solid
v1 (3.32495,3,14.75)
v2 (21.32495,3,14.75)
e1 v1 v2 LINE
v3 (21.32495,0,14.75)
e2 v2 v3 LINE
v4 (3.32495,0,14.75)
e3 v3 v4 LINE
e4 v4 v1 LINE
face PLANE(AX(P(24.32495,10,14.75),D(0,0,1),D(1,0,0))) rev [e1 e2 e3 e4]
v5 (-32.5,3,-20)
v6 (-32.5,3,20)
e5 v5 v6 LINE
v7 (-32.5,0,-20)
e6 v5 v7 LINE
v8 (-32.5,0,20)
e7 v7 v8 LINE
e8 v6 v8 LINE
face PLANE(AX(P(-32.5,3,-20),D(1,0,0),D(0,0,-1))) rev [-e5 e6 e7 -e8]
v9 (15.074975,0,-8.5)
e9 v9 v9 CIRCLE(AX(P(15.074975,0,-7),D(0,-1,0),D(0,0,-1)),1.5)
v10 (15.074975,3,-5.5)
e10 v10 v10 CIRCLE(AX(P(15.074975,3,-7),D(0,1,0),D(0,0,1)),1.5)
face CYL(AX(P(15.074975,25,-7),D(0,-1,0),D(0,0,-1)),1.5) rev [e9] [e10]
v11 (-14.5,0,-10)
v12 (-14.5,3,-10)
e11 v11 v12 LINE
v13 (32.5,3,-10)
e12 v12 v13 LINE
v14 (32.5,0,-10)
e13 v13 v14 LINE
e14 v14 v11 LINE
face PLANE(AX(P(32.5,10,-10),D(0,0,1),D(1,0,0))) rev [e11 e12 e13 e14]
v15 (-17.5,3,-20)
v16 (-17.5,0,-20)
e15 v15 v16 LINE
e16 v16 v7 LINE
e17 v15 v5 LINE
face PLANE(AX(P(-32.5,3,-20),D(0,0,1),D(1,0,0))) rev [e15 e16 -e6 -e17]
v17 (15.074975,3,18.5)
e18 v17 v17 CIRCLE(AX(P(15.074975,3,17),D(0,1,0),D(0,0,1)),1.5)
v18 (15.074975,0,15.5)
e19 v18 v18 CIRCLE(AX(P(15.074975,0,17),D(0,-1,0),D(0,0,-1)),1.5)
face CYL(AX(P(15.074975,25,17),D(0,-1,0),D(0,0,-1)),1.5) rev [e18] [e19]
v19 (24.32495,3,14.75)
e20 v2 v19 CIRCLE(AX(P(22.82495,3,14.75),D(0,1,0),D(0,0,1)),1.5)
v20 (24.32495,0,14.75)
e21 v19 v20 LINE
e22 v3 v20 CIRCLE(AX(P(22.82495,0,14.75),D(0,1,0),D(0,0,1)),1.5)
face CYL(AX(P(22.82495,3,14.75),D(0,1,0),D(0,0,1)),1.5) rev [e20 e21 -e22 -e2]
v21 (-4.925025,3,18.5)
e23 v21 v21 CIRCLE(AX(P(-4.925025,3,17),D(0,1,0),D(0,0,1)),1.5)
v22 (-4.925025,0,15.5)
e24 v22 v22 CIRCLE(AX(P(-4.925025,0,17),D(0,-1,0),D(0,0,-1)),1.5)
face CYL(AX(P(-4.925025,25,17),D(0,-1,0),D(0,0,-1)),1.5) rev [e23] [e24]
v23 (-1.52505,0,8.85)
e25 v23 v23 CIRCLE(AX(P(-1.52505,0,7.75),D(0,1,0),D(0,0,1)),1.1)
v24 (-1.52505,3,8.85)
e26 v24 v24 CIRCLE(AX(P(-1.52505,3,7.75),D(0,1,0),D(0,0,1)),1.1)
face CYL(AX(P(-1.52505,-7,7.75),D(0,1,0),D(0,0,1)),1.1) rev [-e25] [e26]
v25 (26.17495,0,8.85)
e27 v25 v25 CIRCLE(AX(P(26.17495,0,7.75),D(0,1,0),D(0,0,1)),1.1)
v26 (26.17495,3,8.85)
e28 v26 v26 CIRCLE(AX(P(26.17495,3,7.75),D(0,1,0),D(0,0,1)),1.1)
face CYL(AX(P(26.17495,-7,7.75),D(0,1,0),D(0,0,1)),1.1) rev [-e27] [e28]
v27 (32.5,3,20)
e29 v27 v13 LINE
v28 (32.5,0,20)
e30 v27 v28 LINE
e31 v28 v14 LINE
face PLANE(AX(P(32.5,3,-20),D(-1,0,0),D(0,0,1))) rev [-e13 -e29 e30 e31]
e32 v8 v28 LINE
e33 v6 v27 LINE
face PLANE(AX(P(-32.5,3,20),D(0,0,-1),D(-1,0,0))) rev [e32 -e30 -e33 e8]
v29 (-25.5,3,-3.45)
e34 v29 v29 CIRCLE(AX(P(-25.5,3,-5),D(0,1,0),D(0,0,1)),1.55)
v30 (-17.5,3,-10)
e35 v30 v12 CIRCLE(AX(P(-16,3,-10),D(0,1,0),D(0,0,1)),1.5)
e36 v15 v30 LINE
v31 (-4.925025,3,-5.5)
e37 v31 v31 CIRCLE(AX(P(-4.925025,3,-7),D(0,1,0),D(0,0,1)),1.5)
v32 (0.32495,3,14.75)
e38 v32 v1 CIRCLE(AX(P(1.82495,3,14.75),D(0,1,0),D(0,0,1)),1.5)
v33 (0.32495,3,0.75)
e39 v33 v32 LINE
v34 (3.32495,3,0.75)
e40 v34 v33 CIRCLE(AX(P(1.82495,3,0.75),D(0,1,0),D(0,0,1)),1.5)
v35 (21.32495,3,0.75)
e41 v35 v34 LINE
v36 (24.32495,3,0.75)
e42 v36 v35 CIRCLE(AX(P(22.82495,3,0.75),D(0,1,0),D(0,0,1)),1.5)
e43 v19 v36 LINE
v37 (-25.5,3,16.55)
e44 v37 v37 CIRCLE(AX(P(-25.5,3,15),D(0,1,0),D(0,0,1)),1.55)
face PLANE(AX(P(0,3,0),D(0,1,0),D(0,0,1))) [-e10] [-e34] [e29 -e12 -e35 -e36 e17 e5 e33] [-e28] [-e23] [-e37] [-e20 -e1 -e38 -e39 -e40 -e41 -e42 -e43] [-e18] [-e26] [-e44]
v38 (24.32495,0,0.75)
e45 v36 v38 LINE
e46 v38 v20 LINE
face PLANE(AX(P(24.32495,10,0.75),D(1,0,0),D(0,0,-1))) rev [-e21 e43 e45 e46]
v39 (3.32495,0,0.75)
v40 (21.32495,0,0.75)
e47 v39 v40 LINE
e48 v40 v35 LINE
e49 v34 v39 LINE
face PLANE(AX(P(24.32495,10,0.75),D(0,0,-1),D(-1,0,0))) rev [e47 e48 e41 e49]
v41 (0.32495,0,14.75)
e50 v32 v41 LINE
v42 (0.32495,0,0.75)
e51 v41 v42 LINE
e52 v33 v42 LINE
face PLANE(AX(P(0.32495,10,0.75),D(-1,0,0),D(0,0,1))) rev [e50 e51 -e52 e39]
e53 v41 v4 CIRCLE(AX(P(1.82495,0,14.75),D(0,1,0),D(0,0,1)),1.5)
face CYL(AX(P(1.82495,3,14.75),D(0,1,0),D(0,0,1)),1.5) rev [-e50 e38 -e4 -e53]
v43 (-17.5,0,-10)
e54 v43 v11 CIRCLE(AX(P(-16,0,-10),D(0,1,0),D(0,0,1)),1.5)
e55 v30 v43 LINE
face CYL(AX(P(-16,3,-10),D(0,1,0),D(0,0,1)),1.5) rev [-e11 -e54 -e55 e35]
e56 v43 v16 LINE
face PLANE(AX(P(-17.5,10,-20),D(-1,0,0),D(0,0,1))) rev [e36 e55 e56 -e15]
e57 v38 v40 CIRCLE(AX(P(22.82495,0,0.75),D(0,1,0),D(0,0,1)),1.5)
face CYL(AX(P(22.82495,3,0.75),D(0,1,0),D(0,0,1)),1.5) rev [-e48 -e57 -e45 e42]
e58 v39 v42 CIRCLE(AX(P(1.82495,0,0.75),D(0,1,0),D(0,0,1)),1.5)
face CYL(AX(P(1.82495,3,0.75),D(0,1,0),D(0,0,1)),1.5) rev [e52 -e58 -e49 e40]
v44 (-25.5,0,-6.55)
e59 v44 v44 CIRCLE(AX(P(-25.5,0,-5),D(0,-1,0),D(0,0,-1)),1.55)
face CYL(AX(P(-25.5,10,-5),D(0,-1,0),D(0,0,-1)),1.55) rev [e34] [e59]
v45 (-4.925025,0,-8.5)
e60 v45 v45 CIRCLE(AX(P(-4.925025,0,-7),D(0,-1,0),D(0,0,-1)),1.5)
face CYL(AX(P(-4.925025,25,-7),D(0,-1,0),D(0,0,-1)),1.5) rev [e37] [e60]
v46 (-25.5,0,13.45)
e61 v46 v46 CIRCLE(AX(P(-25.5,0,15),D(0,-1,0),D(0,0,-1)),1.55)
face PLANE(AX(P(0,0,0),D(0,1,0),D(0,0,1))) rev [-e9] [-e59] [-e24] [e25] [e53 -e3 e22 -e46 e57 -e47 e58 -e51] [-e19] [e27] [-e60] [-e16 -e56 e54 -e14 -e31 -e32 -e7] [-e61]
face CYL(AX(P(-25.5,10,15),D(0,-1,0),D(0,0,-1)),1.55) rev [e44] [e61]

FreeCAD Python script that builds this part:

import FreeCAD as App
import Part
import Sketcher

V = App.Vector

doc = App.newDocument("Part")
params = doc.addObject("Spreadsheet::Sheet", "Params")
for row, (alias, value) in enumerate([
    ("sketch1_width", "65 mm"),
    ("sketch1_height", "40 mm"),
    ("pad1_length", "3 mm"),
    ("sketch2_diameter", "3.1 mm"),
    ("pocket1_length", "10 mm"),
    ("sketch3_width", "50 mm"),
    ("sketch3_height", "10 mm"),
    ("pocket2_length", "10 mm"),
    ("sketch4_width", "24 mm"),
    ("sketch4_height", "14 mm"),
    ("pocket3_length", "10 mm"),
    ("sketch5_diameter", "2.2 mm"),
    ("pocket4_length", "10 mm"),
    ("sketch6_diameter", "3 mm"),
    ("pocket5_length", "25 mm"),
    ("sketch7_diameter", "3 mm"),
    ("hole_diameter", "3 mm"),
], start=1):
    params.set(f"A{row}", alias)
    params.set(f"B{row}", "=" + value)
    params.setAlias(f"B{row}", alias)

body = doc.addObject("PartDesign::Body", "Body")

sketch1 = doc.addObject("Sketcher::SketchObject", "Sketch")
body.addObject(sketch1)
sketch1.AttachmentSupport = (doc.XZ_Plane, [""])
sketch1.MapMode = "FlatFace"
sketch1.addGeometry([
    Part.LineSegment(V(-32.5, -20, 0), V(-32.5, 20, 0)),
    Part.LineSegment(V(-32.5, 20, 0), V(32.5, 20, 0)),
    Part.LineSegment(V(32.5, 20, 0), V(32.5, -20, 0)),
    Part.LineSegment(V(32.5, -20, 0), V(-32.5, -20, 0)),
], False)
sketch1.addConstraint([
    Sketcher.Constraint("Coincident", 0, 2, 1, 1),
    Sketcher.Constraint("Coincident", 1, 2, 2, 1),
    Sketcher.Constraint("Coincident", 2, 2, 3, 1),
    Sketcher.Constraint("Coincident", 3, 2, 0, 1),
    Sketcher.Constraint("Vertical", 0),
    Sketcher.Constraint("Horizontal", 1),
    Sketcher.Constraint("Vertical", 2),
    Sketcher.Constraint("Horizontal", 3),
    Sketcher.Constraint("Symmetric", 0, 2, 2, 2, -1, 1),
    Sketcher.Constraint("DistanceX", 1, 1, 1, 2, 65.0),
    Sketcher.Constraint("DistanceY", 0, 1, 0, 2, 40.0),
])
sketch1.setExpression("Constraints[9]", "Params.sketch1_width")
sketch1.setExpression("Constraints[10]", "Params.sketch1_height")
pad1 = doc.addObject("PartDesign::Pad", "Pad")
body.addObject(pad1)
pad1.Profile = sketch1
pad1.setExpression("Length", "Params.pad1_length")
pad1.Reversed = True

sketch2 = doc.addObject("Sketcher::SketchObject", "Sketch001")
body.addObject(sketch2)
sketch2.AttachmentSupport = (doc.XZ_Plane, [""])
sketch2.MapMode = "FlatFace"
sketch2.addGeometry([
    Part.Circle(V(-25.5, 15, 0), V(0, 0, 1), 1.55),
    Part.Circle(V(-25.5, -5, 0), V(0, 0, 1), 1.55),
], False)
sketch2.addConstraint([
    Sketcher.Constraint("Equal", 0, 1),
    Sketcher.Constraint("Vertical", 0, 3, 1, 3),
    Sketcher.Constraint("Diameter", 0, 3.1),
    Sketcher.Constraint("DistanceY", -1, 1, 0, 3, 15.0),
    Sketcher.Constraint("DistanceY", 1, 3, -1, 1, 5.0),
    Sketcher.Constraint("DistanceX", 0, 3, -1, 1, 25.5),
])
sketch2.setExpression("Constraints[2]", "Params.sketch2_diameter")
pocket1 = doc.addObject("PartDesign::Pocket", "Pocket")
body.addObject(pocket1)
pocket1.Profile = sketch2
pocket1.setExpression("Length", "Params.pocket1_length")

sketch3 = doc.addObject("Sketcher::SketchObject", "Sketch002")
body.addObject(sketch3)
sketch3.AttachmentSupport = (doc.XZ_Plane, [""])
sketch3.MapMode = "FlatFace"
sketch3.addGeometry([
    Part.LineSegment(V(32.5, -20, 0), V(32.5, -10, 0)),
    Part.LineSegment(V(32.5, -10, 0), V(-17.5, -10, 0)),
    Part.LineSegment(V(-17.5, -10, 0), V(-17.5, -20, 0)),
    Part.LineSegment(V(-17.5, -20, 0), V(32.5, -20, 0)),
], False)
sketch3.addConstraint([
    Sketcher.Constraint("Coincident", 0, 2, 1, 1),
    Sketcher.Constraint("Coincident", 1, 2, 2, 1),
    Sketcher.Constraint("Coincident", 2, 2, 3, 1),
    Sketcher.Constraint("Coincident", 3, 2, 0, 1),
    Sketcher.Constraint("Vertical", 0),
    Sketcher.Constraint("Horizontal", 1),
    Sketcher.Constraint("Vertical", 2),
    Sketcher.Constraint("Horizontal", 3),
    Sketcher.Constraint("DistanceX", 1, 2, 1, 1, 50.0),
    Sketcher.Constraint("DistanceY", 0, 1, 0, 2, 10.0),
    Sketcher.Constraint("DistanceY", 0, 2, -1, 1, 10.0),
    Sketcher.Constraint("DistanceX", -1, 1, 0, 2, 32.5),
])
sketch3.setExpression("Constraints[8]", "Params.sketch3_width")
sketch3.setExpression("Constraints[9]", "Params.sketch3_height")
pocket2 = doc.addObject("PartDesign::Pocket", "Pocket001")
body.addObject(pocket2)
pocket2.Profile = sketch3
pocket2.setExpression("Length", "Params.pocket2_length")

sketch4 = doc.addObject("Sketcher::SketchObject", "Sketch003")
body.addObject(sketch4)
sketch4.AttachmentSupport = (doc.XZ_Plane, [""])
sketch4.MapMode = "FlatFace"
sketch4.addGeometry([
    Part.LineSegment(V(24.32495, 0.75, 0), V(24.32495, 14.75, 0)),
    Part.LineSegment(V(24.32495, 14.75, 0), V(0.32495, 14.75, 0)),
    Part.LineSegment(V(0.32495, 14.75, 0), V(0.32495, 0.75, 0)),
    Part.LineSegment(V(0.32495, 0.75, 0), V(24.32495, 0.75, 0)),
], False)
sketch4.addConstraint([
    Sketcher.Constraint("Coincident", 0, 2, 1, 1),
    Sketcher.Constraint("Coincident", 1, 2, 2, 1),
    Sketcher.Constraint("Coincident", 2, 2, 3, 1),
    Sketcher.Constraint("Coincident", 3, 2, 0, 1),
    Sketcher.Constraint("Vertical", 0),
    Sketcher.Constraint("Horizontal", 1),
    Sketcher.Constraint("Vertical", 2),
    Sketcher.Constraint("Horizontal", 3),
    Sketcher.Constraint("DistanceX", 1, 2, 1, 1, 24.0),
    Sketcher.Constraint("DistanceY", 0, 1, 0, 2, 14.0),
    Sketcher.Constraint("DistanceY", -1, 1, 0, 2, 14.75),
    Sketcher.Constraint("DistanceX", -1, 1, 0, 2, 24.32495),
])
sketch4.setExpression("Constraints[8]", "Params.sketch4_width")
sketch4.setExpression("Constraints[9]", "Params.sketch4_height")
pocket3 = doc.addObject("PartDesign::Pocket", "Pocket002")
body.addObject(pocket3)
pocket3.Profile = sketch4
pocket3.setExpression("Length", "Params.pocket3_length")

sketch5 = doc.addObject("Sketcher::SketchObject", "Sketch004")
body.addObject(sketch5)
sketch5.AttachmentSupport = (doc.XZ_Plane, [""])
sketch5.MapMode = "FlatFace"
sketch5.AttachmentOffset = App.Placement(V(0, 0, -3), App.Rotation())
sketch5.addGeometry([
    Part.Circle(V(26.17495, 7.75, 0), V(0, 0, 1), 1.1),
    Part.Circle(V(-1.52505, 7.75, 0), V(0, 0, 1), 1.1),
], False)
sketch5.addConstraint([
    Sketcher.Constraint("Equal", 0, 1),
    Sketcher.Constraint("Horizontal", 0, 3, 1, 3),
    Sketcher.Constraint("Diameter", 0, 2.2),
    Sketcher.Constraint("DistanceX", 1, 3, 0, 3, 27.7),
    Sketcher.Constraint("DistanceY", -1, 1, 0, 3, 7.75),
    Sketcher.Constraint("DistanceX", -1, 1, 0, 3, 26.17495),
])
sketch5.setExpression("Constraints[2]", "Params.sketch5_diameter")
pocket4 = doc.addObject("PartDesign::Pocket", "Pocket003")
body.addObject(pocket4)
pocket4.Profile = sketch5
pocket4.setExpression("Length", "Params.pocket4_length")
pocket4.Reversed = True

sketch6 = doc.addObject("Sketcher::SketchObject", "Sketch005")
body.addObject(sketch6)
sketch6.AttachmentSupport = (doc.XZ_Plane, [""])
sketch6.MapMode = "FlatFace"
sketch6.addGeometry([
    Part.Circle(V(15.074975, 17, 0), V(0, 0, 1), 1.5),
    Part.Circle(V(-4.925025, 17, 0), V(0, 0, 1), 1.5),
    Part.Circle(V(15.074975, -7, 0), V(0, 0, 1), 1.5),
    Part.Circle(V(-4.925025, -7, 0), V(0, 0, 1), 1.5),
], False)
sketch6.addConstraint([
    Sketcher.Constraint("Equal", 0, 1),
    Sketcher.Constraint("Equal", 1, 2),
    Sketcher.Constraint("Equal", 2, 3),
    Sketcher.Constraint("Horizontal", 0, 3, 1, 3),
    Sketcher.Constraint("Horizontal", 2, 3, 3, 3),
    Sketcher.Constraint("Vertical", 0, 3, 2, 3),
    Sketcher.Constraint("Vertical", 1, 3, 3, 3),
    Sketcher.Constraint("Diameter", 0, 3.0),
    Sketcher.Constraint("DistanceY", -1, 1, 0, 3, 17.0),
    Sketcher.Constraint("DistanceY", 2, 3, -1, 1, 7.0),
    Sketcher.Constraint("DistanceX", 1, 3, 0, 3, 20.0),
    Sketcher.Constraint("DistanceX", -1, 1, 0, 3, 15.074975),
])
sketch6.setExpression("Constraints[7]", "Params.sketch6_diameter")
pocket5 = doc.addObject("PartDesign::Pocket", "Pocket004")
body.addObject(pocket5)
pocket5.Profile = sketch6
pocket5.setExpression("Length", "Params.pocket5_length")

sketch7 = doc.addObject("Sketcher::SketchObject", "Sketch006")
body.addObject(sketch7)
sketch7.AttachmentSupport = (doc.XZ_Plane, [""])
sketch7.MapMode = "FlatFace"
sketch7.AttachmentOffset = App.Placement(V(0, 0, -3), App.Rotation())
sketch7.addGeometry([
    Part.Circle(V(-16, -10, 0), V(0, 0, 1), 1.5),
    Part.Circle(V(1.82495, 0.75, 0), V(0, 0, 1), 1.5),
    Part.Circle(V(22.82495, 0.75, 0), V(0, 0, 1), 1.5),
    Part.Circle(V(22.82495, 14.75, 0), V(0, 0, 1), 1.5),
    Part.Circle(V(1.82495, 14.75, 0), V(0, 0, 1), 1.5),
], False)
sketch7.addConstraint([
    Sketcher.Constraint("Equal", 0, 1),
    Sketcher.Constraint("Equal", 1, 2),
    Sketcher.Constraint("Equal", 2, 3),
    Sketcher.Constraint("Equal", 3, 4),
    Sketcher.Constraint("Horizontal", 1, 3, 2, 3),
    Sketcher.Constraint("Horizontal", 3, 3, 4, 3),
    Sketcher.Constraint("Vertical", 2, 3, 3, 3),
    Sketcher.Constraint("Vertical", 1, 3, 4, 3),
    Sketcher.Constraint("Diameter", 0, 3.0),
    Sketcher.Constraint("DistanceX", 0, 3, -1, 1, 16.0),
    Sketcher.Constraint("DistanceY", 0, 3, -1, 1, 10.0),
    Sketcher.Constraint("DistanceX", 1, 3, 2, 3, 21.0),
    Sketcher.Constraint("DistanceY", 2, 3, 3, 3, 14.0),
    Sketcher.Constraint("DistanceY", -1, 1, 1, 3, 0.75),
    Sketcher.Constraint("DistanceX", -1, 1, 1, 3, 1.82495),
])
sketch7.setExpression("Constraints[8]", "Params.sketch7_diameter")
doc.recompute()
hole = doc.addObject("PartDesign::Hole", "Hole")
body.addObject(hole)
hole.Profile = sketch7
hole.ThreadType = "None"
hole.setExpression("Diameter", "Params.hole_diameter")
hole.DepthType = "ThroughAll"
hole.Reversed = True

doc.recompute()
